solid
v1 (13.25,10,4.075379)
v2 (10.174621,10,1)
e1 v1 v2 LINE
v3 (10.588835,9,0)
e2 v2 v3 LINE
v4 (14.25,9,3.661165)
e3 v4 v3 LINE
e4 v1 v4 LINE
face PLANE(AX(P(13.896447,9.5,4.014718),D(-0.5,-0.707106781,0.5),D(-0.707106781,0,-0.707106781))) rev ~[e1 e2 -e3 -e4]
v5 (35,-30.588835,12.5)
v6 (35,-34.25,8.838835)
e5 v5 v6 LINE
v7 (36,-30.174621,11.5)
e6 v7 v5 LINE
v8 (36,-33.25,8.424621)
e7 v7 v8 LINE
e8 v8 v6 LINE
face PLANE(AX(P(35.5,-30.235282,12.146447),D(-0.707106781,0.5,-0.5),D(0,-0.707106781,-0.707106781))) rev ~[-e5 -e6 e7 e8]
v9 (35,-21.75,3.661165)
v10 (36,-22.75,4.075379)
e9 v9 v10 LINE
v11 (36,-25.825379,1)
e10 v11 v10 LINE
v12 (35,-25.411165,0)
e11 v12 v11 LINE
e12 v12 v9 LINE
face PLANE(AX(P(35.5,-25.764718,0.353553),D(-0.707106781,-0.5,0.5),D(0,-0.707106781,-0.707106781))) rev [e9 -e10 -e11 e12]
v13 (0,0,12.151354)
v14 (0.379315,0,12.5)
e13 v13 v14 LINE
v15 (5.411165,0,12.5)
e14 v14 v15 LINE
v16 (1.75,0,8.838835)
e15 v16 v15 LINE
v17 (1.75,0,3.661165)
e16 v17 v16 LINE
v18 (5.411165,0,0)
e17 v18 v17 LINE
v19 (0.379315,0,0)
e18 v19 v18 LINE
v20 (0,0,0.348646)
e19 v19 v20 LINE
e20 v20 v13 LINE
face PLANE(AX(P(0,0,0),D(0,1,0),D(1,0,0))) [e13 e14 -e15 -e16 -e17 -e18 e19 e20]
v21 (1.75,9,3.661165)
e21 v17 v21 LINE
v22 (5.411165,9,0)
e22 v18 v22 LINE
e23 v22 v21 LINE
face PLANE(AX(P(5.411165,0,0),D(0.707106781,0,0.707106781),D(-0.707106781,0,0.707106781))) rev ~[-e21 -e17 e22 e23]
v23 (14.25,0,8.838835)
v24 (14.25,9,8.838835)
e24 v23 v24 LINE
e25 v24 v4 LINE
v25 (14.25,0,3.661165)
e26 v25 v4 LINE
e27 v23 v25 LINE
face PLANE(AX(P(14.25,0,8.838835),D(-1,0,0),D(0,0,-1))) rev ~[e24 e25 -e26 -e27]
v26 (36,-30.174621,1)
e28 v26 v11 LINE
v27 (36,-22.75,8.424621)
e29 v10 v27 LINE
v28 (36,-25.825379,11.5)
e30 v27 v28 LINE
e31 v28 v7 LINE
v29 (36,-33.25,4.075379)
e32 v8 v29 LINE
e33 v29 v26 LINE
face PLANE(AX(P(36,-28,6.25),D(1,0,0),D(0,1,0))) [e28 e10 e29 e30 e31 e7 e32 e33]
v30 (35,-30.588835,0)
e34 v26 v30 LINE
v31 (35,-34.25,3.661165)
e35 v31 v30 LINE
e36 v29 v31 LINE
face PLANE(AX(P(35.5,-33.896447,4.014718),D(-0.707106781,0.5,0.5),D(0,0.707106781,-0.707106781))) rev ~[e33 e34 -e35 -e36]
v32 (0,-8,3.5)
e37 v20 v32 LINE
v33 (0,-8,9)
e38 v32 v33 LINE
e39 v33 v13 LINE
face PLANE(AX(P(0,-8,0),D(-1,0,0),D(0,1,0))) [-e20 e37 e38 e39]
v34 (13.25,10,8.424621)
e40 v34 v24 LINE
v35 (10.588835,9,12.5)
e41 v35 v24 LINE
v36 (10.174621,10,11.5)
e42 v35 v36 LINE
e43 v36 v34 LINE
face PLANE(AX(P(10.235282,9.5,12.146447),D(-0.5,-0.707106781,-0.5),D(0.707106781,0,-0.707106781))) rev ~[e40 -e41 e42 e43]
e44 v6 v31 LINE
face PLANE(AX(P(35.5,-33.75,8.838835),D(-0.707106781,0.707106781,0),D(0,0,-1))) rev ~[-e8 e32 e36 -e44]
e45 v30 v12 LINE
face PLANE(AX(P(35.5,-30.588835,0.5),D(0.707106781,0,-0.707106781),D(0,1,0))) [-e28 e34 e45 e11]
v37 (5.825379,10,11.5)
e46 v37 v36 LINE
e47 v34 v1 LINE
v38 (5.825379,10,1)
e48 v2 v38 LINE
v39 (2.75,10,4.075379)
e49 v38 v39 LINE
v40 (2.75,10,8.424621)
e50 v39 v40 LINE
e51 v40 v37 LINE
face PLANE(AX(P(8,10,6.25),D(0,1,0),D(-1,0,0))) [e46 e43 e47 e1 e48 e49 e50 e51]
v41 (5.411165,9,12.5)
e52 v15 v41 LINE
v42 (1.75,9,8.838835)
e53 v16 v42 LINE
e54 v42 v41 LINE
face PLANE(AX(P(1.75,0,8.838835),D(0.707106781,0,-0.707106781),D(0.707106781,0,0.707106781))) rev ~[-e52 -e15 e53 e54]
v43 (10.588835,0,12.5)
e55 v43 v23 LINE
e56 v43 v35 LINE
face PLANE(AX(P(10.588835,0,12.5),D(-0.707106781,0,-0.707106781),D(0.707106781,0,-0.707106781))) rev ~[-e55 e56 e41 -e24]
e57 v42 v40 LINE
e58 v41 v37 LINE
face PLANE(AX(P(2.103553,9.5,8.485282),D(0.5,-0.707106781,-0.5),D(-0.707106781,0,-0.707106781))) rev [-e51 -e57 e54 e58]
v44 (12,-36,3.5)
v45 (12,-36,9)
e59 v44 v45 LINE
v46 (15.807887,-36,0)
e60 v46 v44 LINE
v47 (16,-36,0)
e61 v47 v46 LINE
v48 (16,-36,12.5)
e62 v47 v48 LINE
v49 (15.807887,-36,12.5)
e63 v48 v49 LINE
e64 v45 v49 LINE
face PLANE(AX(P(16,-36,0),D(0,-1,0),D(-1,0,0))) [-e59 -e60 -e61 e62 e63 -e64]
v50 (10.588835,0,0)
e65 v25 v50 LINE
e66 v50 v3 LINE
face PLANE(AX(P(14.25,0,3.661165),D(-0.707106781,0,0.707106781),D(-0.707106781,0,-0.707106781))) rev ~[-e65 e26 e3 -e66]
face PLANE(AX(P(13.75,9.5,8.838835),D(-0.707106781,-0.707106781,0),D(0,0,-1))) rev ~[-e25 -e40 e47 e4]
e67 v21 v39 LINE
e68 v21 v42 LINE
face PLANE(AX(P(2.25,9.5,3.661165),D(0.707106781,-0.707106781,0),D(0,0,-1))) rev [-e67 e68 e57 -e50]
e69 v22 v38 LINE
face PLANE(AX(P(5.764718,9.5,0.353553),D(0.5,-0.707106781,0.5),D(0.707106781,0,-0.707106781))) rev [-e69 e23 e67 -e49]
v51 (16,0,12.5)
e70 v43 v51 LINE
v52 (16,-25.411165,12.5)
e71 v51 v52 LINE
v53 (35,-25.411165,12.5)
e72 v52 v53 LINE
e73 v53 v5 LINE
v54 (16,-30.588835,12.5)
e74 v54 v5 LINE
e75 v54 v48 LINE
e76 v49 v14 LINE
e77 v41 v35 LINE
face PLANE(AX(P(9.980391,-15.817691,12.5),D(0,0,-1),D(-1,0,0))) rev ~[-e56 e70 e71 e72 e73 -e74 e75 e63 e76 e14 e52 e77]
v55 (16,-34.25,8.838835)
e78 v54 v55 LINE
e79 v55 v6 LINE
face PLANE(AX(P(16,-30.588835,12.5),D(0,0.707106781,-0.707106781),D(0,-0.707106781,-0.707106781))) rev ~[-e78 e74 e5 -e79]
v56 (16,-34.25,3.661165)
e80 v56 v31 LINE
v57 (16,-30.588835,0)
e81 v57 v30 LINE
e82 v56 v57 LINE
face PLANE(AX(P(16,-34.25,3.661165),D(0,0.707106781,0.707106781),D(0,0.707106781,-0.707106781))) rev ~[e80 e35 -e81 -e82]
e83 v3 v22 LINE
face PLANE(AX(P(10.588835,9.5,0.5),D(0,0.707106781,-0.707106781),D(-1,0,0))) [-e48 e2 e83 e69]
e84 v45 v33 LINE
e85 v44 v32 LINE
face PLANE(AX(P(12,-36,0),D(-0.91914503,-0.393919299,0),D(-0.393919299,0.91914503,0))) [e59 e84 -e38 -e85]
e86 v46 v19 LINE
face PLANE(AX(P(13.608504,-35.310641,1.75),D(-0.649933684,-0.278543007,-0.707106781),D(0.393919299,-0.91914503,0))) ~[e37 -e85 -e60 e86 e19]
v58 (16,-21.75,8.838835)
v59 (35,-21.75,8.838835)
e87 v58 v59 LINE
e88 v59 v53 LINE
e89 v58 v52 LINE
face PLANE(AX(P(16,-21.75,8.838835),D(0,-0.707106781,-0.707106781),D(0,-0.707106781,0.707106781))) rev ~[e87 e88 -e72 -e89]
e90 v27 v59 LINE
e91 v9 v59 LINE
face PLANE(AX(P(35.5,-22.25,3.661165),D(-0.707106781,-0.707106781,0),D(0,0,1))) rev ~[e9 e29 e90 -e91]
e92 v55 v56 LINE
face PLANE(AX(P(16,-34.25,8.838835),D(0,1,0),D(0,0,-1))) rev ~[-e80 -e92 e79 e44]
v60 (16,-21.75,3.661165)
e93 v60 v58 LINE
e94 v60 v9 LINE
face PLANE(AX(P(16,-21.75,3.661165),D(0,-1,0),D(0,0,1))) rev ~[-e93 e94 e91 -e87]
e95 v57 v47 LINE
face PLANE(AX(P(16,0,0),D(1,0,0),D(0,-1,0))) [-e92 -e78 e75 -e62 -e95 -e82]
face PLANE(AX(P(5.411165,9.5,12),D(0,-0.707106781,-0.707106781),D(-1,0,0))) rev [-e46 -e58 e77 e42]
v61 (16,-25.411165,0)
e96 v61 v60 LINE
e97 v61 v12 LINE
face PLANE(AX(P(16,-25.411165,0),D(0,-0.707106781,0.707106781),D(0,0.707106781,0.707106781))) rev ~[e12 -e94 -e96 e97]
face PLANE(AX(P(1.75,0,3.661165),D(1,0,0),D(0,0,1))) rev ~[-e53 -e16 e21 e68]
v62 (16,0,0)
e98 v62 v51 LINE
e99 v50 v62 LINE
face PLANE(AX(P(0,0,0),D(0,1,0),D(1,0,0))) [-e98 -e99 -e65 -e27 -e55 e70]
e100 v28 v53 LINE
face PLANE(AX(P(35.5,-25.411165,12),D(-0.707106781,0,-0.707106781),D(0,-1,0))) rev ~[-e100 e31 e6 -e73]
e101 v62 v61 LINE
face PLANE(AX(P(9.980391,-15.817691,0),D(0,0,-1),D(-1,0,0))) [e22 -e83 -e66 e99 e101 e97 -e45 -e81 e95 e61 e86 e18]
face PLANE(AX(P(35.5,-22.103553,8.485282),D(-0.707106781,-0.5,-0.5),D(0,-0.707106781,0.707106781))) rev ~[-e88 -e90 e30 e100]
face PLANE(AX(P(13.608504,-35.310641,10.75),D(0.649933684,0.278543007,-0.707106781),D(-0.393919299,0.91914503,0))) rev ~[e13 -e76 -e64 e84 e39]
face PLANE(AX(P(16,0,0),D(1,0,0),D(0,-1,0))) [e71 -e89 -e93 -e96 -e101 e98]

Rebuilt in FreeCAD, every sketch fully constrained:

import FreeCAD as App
import Part
import Sketcher

V = App.Vector


def edges_at(feature, points):
    """Names of the edges that pass closest to the given points."""
    edges = feature.Shape.Edges
    near = lambda p: min(range(len(edges)), key=lambda i: edges[i].distToShape(Part.Vertex(*p))[0])
    return sorted({f"Edge{near(p) + 1}" for p in points})


def add_polygon(sketch, points):
    """Adds a closed chain of lines whose ends are joined by coincident constraints."""
    first, n = sketch.GeometryCount, len(points)
    for a, b in zip(points, points[1:] + points[:1]):
        sketch.addGeometry(Part.LineSegment(App.Vector(*a, 0), App.Vector(*b, 0)), False)
    for i in range(n):
        sketch.addConstraint(Sketcher.Constraint("Coincident", first + i, 2, first + (i + 1) % n, 1))

doc = App.newDocument("Part")
body = doc.addObject("PartDesign::Body", "Body")

sketch1 = body.newObject("Sketcher::SketchObject", "Sketch")
sketch1.AttachmentSupport = (doc.getObject("XY_Plane"), [""])
sketch1.MapMode = "FlatFace"
add_polygon(sketch1, [(16, 0), (0, 0), (0, -8), (12, -36), (16, -36)])
sketch1.addConstraint(Sketcher.Constraint("Horizontal", 0))
sketch1.addConstraint(Sketcher.Constraint("Vertical", 1))
sketch1.addConstraint(Sketcher.Constraint("Horizontal", 3))
sketch1.addConstraint(Sketcher.Constraint("Vertical", 4))
sketch1.addConstraint(Sketcher.Constraint("Coincident", 0, 2, -1, 1))
sketch1.addConstraint(Sketcher.Constraint("DistanceX", 0, 2, 0, 1, 16.0))
sketch1.addConstraint(Sketcher.Constraint("DistanceX", 3, 1, 3, 2, 4.0))
sketch1.addConstraint(Sketcher.Constraint("DistanceY", 1, 2, 1, 1, 8.0))
sketch1.addConstraint(Sketcher.Constraint("DistanceY", 4, 1, 4, 2, 36.0))
pad1 = body.newObject("PartDesign::Pad", "Pad")
pad1.Profile = sketch1
pad1.Length = 12.5

sketch2 = body.newObject("Sketcher::SketchObject", "Sketch001")
sketch2.AttachmentSupport = (doc.getObject("XZ_Plane"), [""])
sketch2.MapMode = "FlatFace"
add_polygon(sketch2, [(5.411165, 0), (1.75, 3.661165), (1.75, 8.838835), (5.411165, 12.5), (10.588835, 12.5), (14.25, 8.838835), (14.25, 3.661165), (10.588835, 0)])
sketch2.addConstraint(Sketcher.Constraint("Vertical", 1))
sketch2.addConstraint(Sketcher.Constraint("Horizontal", 3))
sketch2.addConstraint(Sketcher.Constraint("Vertical", 5))
sketch2.addConstraint(Sketcher.Constraint("Horizontal", 7))
sketch2.addConstraint(Sketcher.Constraint("PointOnObject", 6, 2, -1))
sketch2.addConstraint(Sketcher.Constraint("Perpendicular", 0, 2))
sketch2.addConstraint(Sketcher.Constraint("Perpendicular", 2, 4))
sketch2.addConstraint(Sketcher.Constraint("Perpendicular", 4, 6))
sketch2.addConstraint(Sketcher.Constraint("Horizontal", 1, 2, 4, 2))
sketch2.addConstraint(Sketcher.Constraint("Horizontal", 0, 2, 5, 2))
sketch2.addConstraint(Sketcher.Constraint("Vertical", 3, 2, 6, 2))
sketch2.addConstraint(Sketcher.Constraint("Vertical", 2, 2, 7, 2))
sketch2.addConstraint(Sketcher.Constraint("Equal", 7, 1))
sketch2.addConstraint(Sketcher.Constraint("DistanceY", -1, 1, 2, 2, 12.5))
sketch2.addConstraint(Sketcher.Constraint("DistanceX", -1, 1, 0, 2, 1.75))
sketch2.addConstraint(Sketcher.Constraint("DistanceX", 3, 1, 3, 2, 5.17767))
pad2 = body.newObject("PartDesign::Pad", "Pad001")
pad2.Profile = sketch2
pad2.Length = 10
pad2.Reversed = True

sketch3 = body.newObject("Sketcher::SketchObject", "Sketch002")
sketch3.AttachmentSupport = (doc.getObject("YZ_Plane"), [""])
sketch3.MapMode = "FlatFace"
sketch3.AttachmentOffset = App.Placement(V(0, 0, 16), App.Rotation())
add_polygon(sketch3, [(-25.411165, 0), (-21.75, 3.661165), (-21.75, 8.838835), (-25.411165, 12.5), (-30.588835, 12.5), (-34.25, 8.838835), (-34.25, 3.661165), (-30.588835, 0)])
sketch3.addConstraint(Sketcher.Constraint("Vertical", 1))
sketch3.addConstraint(Sketcher.Constraint("Horizontal", 3))
sketch3.addConstraint(Sketcher.Constraint("Vertical", 5))
sketch3.addConstraint(Sketcher.Constraint("Horizontal", 7))
sketch3.addConstraint(Sketcher.Constraint("PointOnObject", 6, 2, -1))
sketch3.addConstraint(Sketcher.Constraint("Perpendicular", 0, 2))
sketch3.addConstraint(Sketcher.Constraint("Perpendicular", 2, 4))
sketch3.addConstraint(Sketcher.Constraint("Perpendicular", 4, 6))
sketch3.addConstraint(Sketcher.Constraint("Horizontal", 1, 2, 4, 2))
sketch3.addConstraint(Sketcher.Constraint("Horizontal", 0, 2, 5, 2))
sketch3.addConstraint(Sketcher.Constraint("Vertical", 3, 2, 6, 2))
sketch3.addConstraint(Sketcher.Constraint("Vertical", 2, 2, 7, 2))
sketch3.addConstraint(Sketcher.Constraint("Equal", 7, 1))
sketch3.addConstraint(Sketcher.Constraint("DistanceY", -1, 1, 2, 2, 12.5))
sketch3.addConstraint(Sketcher.Constraint("DistanceX", 0, 2, -1, 1, 21.75))
sketch3.addConstraint(Sketcher.Constraint("DistanceX", 3, 2, 3, 1, 5.17767))
pad3 = body.newObject("PartDesign::Pad", "Pad002")
pad3.Profile = sketch3
pad3.Length = 20
doc.recompute()

chamfer = body.newObject("PartDesign::Chamfer", "Chamfer")
chamfer.Base = (pad3, edges_at(pad3, [
    (3.581, 10, 1.831),
    (1.75, 10, 6.25),
    (3.581, 10, 10.669),
    (8, 10, 12.5),
    (12.419, 10, 10.669),
    (14.25, 10, 6.25),
    (12.419, 10, 1.831),
    (8, 10, 0),
]))
chamfer.Size = 1
doc.recompute()

chamfer2 = body.newObject("PartDesign::Chamfer", "Chamfer001")
chamfer2.Base = (chamfer, edges_at(chamfer, [
    (36, -23.581, 1.831),
    (36, -21.75, 6.25),
    (36, -23.581, 10.669),
    (36, -28, 12.5),
    (36, -32.419, 10.669),
    (36, -34.25, 6.25),
    (36, -32.419, 1.831),
    (36, -28, 0),
]))
chamfer2.Size = 1
doc.recompute()

chamfer3 = body.newObject("PartDesign::Chamfer", "Chamfer002")
chamfer3.Base = (chamfer2, edges_at(chamfer2, [(6, -22, 0), (6, -22, 12.5)]))
chamfer3.Size = 3.5

doc.recompute()
